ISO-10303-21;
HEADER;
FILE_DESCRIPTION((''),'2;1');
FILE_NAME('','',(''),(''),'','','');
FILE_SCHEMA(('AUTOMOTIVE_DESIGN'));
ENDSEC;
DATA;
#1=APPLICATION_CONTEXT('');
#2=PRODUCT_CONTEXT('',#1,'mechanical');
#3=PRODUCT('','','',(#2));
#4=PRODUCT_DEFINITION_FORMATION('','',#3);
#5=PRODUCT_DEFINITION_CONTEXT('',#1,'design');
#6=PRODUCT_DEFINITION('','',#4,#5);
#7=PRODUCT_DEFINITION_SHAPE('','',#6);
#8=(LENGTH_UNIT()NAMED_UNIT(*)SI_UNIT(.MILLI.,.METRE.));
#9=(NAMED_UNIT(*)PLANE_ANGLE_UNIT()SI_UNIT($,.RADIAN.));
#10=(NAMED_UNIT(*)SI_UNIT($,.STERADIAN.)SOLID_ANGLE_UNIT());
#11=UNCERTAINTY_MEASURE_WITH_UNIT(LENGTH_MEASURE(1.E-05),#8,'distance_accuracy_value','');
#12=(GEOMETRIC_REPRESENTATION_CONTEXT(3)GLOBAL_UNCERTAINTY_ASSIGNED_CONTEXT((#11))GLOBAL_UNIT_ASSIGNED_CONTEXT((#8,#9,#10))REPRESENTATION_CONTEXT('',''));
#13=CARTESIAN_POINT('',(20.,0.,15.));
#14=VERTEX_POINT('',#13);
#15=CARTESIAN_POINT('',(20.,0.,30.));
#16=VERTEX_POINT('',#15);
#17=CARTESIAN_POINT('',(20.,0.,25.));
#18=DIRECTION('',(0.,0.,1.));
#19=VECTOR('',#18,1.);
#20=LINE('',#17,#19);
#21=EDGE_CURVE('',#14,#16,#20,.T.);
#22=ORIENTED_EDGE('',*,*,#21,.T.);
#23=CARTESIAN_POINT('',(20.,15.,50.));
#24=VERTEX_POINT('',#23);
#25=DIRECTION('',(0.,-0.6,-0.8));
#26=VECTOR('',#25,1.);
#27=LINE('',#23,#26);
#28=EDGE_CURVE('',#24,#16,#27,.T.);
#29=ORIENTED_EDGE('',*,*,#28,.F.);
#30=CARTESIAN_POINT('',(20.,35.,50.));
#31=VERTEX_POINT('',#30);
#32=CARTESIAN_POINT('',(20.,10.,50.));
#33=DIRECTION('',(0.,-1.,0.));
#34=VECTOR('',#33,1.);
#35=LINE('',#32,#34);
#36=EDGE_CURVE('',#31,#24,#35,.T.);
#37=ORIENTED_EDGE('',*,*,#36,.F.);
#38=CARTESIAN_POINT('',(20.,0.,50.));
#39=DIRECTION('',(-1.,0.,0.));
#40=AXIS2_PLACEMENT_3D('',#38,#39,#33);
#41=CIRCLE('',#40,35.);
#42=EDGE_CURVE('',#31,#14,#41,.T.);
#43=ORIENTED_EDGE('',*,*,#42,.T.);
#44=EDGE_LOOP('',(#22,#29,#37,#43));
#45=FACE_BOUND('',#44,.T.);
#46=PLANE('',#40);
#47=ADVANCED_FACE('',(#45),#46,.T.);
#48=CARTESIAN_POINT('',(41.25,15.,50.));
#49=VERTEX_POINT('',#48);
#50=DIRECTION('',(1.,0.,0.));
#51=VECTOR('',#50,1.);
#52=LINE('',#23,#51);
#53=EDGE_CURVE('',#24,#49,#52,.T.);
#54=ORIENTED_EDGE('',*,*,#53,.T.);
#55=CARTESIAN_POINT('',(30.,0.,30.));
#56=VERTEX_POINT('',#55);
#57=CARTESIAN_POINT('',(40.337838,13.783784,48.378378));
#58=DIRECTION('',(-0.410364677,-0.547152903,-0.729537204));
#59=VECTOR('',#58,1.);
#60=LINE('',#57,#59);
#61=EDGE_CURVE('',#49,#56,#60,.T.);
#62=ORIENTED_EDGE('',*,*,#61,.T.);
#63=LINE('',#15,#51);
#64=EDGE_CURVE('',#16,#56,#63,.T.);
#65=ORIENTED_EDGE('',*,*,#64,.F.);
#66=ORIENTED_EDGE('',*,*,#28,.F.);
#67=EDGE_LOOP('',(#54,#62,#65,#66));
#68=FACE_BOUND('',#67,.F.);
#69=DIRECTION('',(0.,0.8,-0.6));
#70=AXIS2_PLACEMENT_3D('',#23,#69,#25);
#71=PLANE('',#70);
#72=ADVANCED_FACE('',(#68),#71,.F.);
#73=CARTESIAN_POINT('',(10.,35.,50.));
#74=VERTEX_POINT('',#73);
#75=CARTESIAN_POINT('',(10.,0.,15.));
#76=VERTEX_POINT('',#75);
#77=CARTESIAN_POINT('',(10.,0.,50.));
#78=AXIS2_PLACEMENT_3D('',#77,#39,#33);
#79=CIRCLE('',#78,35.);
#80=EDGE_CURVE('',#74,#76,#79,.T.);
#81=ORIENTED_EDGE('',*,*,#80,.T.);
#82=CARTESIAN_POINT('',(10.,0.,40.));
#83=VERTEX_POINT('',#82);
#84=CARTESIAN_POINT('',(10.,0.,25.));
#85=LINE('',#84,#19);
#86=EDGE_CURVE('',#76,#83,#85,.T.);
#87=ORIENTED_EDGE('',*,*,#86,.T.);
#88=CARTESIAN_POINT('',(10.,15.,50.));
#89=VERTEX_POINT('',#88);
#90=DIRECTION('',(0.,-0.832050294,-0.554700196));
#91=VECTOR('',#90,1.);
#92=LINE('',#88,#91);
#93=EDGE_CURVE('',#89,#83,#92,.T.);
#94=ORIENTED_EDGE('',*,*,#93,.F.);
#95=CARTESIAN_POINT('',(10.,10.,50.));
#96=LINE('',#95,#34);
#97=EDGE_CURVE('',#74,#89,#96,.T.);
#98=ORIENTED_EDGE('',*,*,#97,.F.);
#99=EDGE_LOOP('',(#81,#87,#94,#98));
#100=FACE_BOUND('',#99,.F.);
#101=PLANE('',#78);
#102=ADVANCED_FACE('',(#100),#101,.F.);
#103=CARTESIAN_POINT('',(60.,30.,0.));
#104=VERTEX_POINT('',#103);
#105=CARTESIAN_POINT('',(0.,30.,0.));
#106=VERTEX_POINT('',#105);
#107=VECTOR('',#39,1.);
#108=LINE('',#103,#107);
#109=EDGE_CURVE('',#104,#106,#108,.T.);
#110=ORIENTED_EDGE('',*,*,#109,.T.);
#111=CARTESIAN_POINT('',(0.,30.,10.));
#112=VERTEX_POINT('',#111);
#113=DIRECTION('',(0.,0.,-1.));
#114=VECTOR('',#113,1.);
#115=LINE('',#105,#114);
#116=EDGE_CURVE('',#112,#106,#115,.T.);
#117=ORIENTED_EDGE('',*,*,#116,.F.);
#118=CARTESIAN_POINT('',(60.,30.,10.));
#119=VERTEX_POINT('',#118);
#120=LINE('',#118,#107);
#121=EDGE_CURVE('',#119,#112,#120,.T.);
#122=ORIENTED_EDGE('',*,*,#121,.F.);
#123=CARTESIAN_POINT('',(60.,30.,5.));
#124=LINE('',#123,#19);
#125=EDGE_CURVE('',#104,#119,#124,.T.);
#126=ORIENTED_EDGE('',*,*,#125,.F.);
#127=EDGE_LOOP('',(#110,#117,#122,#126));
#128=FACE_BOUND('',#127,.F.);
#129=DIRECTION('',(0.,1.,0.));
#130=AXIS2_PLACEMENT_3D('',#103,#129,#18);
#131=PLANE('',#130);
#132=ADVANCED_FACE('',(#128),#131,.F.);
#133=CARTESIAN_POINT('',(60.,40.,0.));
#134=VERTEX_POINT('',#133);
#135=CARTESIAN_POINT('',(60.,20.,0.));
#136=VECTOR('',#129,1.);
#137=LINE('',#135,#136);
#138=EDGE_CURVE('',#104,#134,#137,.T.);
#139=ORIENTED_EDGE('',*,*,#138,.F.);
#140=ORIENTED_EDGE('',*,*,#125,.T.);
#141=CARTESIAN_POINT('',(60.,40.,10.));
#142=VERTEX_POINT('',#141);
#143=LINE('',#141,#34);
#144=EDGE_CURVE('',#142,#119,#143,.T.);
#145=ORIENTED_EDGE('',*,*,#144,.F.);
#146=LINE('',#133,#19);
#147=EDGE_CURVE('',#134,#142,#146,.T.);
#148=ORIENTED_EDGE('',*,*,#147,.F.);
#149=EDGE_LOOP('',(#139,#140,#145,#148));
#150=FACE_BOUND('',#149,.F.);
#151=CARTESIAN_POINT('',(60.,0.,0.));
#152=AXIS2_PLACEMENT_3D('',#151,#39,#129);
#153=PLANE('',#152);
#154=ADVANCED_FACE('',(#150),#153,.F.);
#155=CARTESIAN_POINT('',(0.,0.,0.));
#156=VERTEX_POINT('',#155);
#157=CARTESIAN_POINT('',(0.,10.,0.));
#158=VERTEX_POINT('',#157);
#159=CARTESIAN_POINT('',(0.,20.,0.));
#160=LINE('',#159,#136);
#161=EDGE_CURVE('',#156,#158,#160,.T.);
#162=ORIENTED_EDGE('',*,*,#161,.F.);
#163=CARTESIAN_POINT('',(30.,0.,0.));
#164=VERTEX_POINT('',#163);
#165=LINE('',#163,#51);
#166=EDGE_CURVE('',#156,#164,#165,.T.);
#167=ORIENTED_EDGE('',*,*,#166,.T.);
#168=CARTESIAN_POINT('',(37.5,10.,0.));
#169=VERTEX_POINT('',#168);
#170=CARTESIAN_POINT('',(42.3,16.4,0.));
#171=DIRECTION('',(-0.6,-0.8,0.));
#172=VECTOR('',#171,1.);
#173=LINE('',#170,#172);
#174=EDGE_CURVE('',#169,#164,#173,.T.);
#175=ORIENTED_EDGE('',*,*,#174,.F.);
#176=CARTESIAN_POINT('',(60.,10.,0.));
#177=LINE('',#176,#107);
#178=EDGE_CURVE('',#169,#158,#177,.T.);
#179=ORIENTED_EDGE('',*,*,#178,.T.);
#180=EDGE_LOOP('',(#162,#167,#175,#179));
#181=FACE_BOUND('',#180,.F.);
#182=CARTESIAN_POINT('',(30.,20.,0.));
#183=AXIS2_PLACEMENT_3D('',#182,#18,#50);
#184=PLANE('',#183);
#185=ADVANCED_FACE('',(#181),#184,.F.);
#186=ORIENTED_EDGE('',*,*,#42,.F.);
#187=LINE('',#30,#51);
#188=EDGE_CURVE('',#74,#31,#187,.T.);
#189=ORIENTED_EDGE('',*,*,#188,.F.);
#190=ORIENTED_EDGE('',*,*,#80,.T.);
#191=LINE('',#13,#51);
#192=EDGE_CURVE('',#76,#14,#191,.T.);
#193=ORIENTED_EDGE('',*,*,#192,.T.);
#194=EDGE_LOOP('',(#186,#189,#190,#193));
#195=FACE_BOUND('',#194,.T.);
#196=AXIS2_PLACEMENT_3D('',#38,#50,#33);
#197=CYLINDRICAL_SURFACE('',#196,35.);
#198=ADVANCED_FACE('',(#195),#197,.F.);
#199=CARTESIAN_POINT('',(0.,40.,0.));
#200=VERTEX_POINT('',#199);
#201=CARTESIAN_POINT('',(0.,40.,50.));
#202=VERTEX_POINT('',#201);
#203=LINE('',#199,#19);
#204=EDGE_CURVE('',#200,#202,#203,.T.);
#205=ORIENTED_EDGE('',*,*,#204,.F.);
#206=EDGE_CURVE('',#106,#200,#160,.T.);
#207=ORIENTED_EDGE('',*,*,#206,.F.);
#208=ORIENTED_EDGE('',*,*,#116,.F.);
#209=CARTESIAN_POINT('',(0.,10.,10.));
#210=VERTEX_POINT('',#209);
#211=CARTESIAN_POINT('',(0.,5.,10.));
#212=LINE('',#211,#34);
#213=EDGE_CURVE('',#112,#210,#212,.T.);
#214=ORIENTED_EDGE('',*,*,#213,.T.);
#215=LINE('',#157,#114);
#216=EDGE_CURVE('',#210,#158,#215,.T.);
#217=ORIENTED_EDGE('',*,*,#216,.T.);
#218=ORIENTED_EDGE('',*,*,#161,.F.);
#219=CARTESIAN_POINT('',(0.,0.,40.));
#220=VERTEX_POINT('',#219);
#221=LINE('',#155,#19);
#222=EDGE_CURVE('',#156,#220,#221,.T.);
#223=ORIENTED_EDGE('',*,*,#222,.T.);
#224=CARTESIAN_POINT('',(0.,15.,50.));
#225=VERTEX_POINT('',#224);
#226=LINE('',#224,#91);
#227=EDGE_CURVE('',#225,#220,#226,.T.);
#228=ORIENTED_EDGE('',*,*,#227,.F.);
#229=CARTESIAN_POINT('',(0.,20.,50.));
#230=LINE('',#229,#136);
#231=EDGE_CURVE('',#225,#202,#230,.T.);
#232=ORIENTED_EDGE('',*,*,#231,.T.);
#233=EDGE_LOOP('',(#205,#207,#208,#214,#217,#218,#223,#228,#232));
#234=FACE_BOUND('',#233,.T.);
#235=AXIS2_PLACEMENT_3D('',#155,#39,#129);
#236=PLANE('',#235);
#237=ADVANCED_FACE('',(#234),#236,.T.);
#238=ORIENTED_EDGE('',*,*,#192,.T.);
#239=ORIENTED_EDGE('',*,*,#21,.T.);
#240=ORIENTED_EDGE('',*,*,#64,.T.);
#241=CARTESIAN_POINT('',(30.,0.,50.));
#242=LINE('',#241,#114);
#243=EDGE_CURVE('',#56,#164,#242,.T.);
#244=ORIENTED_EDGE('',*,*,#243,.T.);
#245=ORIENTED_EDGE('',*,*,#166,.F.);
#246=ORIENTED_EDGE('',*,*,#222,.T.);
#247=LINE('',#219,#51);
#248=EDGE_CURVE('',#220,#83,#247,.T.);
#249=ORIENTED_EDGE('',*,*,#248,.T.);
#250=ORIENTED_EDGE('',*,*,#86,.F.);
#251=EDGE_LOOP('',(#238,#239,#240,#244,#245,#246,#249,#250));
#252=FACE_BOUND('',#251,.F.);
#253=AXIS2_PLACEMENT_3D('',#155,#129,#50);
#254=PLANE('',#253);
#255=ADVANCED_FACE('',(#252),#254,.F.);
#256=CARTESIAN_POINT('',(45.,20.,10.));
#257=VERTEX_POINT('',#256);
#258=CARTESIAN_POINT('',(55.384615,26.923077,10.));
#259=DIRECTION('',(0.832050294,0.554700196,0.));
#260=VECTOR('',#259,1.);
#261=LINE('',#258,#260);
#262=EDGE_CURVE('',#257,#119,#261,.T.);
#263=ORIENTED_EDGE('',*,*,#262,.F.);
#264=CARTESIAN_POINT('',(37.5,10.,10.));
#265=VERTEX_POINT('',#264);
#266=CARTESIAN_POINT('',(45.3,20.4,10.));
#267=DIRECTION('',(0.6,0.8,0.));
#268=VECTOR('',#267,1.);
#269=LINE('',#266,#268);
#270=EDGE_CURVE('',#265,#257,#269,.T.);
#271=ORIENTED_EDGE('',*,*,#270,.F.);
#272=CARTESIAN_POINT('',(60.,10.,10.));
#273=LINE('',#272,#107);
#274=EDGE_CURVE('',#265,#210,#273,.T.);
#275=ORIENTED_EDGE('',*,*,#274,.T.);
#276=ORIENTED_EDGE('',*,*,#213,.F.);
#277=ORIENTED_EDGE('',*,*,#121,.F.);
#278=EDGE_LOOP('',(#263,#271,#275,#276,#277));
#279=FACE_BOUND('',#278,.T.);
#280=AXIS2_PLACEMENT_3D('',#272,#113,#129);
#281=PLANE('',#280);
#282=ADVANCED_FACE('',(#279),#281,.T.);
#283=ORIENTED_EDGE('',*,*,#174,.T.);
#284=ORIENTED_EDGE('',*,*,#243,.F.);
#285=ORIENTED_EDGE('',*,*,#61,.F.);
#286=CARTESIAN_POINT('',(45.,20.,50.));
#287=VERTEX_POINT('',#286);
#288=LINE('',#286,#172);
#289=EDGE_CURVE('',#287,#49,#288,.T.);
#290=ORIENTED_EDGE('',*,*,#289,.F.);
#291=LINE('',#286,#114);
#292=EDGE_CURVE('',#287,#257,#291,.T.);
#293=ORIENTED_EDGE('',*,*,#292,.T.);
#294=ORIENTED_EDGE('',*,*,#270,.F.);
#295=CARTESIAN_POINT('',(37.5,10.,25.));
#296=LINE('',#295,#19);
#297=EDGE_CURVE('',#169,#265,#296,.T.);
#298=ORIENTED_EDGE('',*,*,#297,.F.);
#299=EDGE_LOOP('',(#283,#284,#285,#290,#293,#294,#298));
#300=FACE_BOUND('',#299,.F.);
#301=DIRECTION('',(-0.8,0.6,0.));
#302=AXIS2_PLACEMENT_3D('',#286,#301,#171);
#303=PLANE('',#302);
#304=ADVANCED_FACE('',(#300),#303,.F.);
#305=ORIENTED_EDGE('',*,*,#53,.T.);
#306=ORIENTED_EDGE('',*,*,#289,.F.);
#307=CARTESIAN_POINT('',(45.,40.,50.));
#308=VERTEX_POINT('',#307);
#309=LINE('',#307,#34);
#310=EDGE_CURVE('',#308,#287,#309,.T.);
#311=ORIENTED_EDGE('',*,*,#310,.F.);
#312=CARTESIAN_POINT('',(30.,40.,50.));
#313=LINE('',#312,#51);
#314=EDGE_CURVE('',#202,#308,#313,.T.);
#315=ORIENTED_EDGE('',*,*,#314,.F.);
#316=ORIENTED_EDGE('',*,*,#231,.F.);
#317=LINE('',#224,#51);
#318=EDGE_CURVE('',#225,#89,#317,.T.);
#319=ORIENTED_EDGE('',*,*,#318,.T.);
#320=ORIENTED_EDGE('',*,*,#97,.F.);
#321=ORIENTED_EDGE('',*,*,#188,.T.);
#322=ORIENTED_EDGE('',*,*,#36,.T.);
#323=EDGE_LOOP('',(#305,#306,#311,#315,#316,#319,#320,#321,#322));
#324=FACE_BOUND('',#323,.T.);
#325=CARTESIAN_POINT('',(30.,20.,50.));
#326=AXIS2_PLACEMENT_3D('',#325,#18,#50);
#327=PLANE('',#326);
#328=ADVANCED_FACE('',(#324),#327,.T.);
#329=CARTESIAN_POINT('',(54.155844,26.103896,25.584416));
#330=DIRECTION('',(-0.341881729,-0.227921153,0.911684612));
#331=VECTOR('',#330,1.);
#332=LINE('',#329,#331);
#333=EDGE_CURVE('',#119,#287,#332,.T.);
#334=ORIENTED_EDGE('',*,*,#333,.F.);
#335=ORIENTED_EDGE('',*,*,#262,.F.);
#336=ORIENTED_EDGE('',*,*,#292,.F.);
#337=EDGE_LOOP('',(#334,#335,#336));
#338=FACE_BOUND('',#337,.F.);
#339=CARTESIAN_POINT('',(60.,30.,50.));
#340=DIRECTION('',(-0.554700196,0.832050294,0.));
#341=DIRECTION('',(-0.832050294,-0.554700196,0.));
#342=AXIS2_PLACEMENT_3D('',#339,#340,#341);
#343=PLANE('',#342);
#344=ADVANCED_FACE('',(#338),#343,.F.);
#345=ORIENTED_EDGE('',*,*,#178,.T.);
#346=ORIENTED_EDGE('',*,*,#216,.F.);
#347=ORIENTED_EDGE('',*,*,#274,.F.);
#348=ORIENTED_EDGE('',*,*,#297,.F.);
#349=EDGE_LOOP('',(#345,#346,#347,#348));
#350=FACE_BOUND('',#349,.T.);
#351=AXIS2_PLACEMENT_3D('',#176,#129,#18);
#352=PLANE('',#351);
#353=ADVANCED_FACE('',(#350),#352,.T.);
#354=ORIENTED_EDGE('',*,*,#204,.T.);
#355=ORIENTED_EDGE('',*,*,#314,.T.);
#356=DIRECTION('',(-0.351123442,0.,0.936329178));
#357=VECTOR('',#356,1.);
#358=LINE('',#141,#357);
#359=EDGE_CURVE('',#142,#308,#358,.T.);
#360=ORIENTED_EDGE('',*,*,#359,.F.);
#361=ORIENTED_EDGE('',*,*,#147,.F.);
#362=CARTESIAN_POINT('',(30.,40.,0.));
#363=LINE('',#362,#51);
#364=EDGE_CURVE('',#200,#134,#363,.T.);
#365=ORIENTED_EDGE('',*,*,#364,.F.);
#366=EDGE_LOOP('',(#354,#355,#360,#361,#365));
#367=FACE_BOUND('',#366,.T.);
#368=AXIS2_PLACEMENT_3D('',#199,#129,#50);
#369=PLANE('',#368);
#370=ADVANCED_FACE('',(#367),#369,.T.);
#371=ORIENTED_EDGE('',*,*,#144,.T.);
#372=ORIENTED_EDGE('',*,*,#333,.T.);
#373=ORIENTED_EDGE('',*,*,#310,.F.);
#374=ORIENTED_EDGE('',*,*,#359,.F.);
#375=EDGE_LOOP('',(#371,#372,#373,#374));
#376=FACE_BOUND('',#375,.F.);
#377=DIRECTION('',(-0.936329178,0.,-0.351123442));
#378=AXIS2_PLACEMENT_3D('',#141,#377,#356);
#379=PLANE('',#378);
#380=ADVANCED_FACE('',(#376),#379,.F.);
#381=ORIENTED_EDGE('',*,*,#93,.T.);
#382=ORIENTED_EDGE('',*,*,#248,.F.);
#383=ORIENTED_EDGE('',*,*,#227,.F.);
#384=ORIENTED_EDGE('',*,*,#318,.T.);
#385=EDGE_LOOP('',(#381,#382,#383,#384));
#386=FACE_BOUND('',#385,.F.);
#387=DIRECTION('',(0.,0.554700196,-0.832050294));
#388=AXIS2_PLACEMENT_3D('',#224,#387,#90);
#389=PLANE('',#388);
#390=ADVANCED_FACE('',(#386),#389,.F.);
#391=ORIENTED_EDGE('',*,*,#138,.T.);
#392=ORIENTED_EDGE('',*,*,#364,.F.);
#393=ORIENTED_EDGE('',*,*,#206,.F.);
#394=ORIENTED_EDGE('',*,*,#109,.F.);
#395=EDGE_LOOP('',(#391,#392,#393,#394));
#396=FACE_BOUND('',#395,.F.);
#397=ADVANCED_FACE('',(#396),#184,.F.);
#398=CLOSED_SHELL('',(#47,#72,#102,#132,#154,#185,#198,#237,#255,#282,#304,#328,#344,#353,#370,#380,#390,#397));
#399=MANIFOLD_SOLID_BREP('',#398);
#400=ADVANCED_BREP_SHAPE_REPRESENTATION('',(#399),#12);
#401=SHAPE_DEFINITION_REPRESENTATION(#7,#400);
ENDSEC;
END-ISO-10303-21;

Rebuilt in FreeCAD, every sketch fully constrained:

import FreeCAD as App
import Part
import Sketcher
from FreeCAD import Vector


def add_polygon(sketch, points):
    """Adds a closed chain of lines whose ends are joined by coincident constraints."""
    first, n = sketch.GeometryCount, len(points)
    for a, b in zip(points, points[1:] + points[:1]):
        sketch.addGeometry(Part.LineSegment(App.Vector(*a, 0), App.Vector(*b, 0)), False)
    for i in range(n):
        sketch.addConstraint(Sketcher.Constraint("Coincident", first + i, 2, first + (i + 1) % n, 1))

doc = App.newDocument("Part")
body = doc.addObject("PartDesign::Body", "Body")

# Sketch on XY plane
sketch1 = body.newObject("Sketcher::SketchObject", "Sketch")
sketch1.AttachmentSupport = (doc.getObject("XY_Plane"), [""])
sketch1.MapMode = "FlatFace"
add_polygon(sketch1, [(0, 40), (0, 0), (60, 0), (60, 40)])  # lines 0-3
sketch1.addConstraint([
    Sketcher.Constraint("Vertical", 0),
    Sketcher.Constraint("Horizontal", 1),
    Sketcher.Constraint("Vertical", 2),
    Sketcher.Constraint("Horizontal", 3),
    Sketcher.Constraint("Coincident", 0, 2, -1, 1),
    Sketcher.Constraint("DistanceX", 1, 1, 1, 2, 60.0),
    Sketcher.Constraint("DistanceY", 0, 2, 0, 1, 40.0),
])
pad1 = body.newObject("PartDesign::Pad", "Pad")
pad1.Profile = sketch1
pad1.Length = 50

# Sketch on YZ plane
sketch2 = body.newObject("Sketcher::SketchObject", "Sketch001")
sketch2.AttachmentSupport = (doc.getObject("YZ_Plane"), [""])
sketch2.MapMode = "FlatFace"
sketch2.AttachmentOffset = App.Placement(Vector(0, 0, 60), App.Rotation())
add_polygon(sketch2, [(10, 10), (10, 0), (30, 0), (30, 10)])  # lines 0-3
sketch2.addConstraint([
    Sketcher.Constraint("Vertical", 0),
    Sketcher.Constraint("Horizontal", 1),
    Sketcher.Constraint("Vertical", 2),
    Sketcher.Constraint("Horizontal", 3),
    Sketcher.Constraint("PointOnObject", 0, 2, -1),
    Sketcher.Constraint("DistanceX", 1, 1, 1, 2, 20.0),
    Sketcher.Constraint("DistanceY", 0, 2, 0, 1, 10.0),
    Sketcher.Constraint("DistanceX", -1, 1, 0, 2, 10.0),
])
pocket1 = body.newObject("PartDesign::Pocket", "Pocket")
pocket1.Profile = sketch2
pocket1.Type = "ThroughAll"

# Sketch on YZ plane
sketch3 = body.newObject("Sketcher::SketchObject", "Sketch002")
sketch3.AttachmentSupport = (doc.getObject("YZ_Plane"), [""])
sketch3.MapMode = "FlatFace"
sketch3.AttachmentOffset = App.Placement(Vector(0, 0, 20), App.Rotation())
sketch3.addGeometry(Part.Circle(Vector(0, 50, 0), Vector(0, 0, 1), 35), False)
sketch3.addConstraint([
    Sketcher.Constraint("PointOnObject", 0, 3, -2),
    Sketcher.Constraint("Diameter", 0, 70.0),
    Sketcher.Constraint("DistanceY", -1, 1, 0, 3, 50.0),
])
pocket2 = body.newObject("PartDesign::Pocket", "Pocket001")
pocket2.Profile = sketch3
pocket2.Length = 10

# Sketch on XY plane
sketch4 = body.newObject("Sketcher::SketchObject", "Sketch003")
sketch4.AttachmentSupport = (doc.getObject("XY_Plane"), [""])
sketch4.MapMode = "FlatFace"
sketch4.AttachmentOffset = App.Placement(Vector(0, 0, 50), App.Rotation())
add_polygon(sketch4, [(60, 0), (60, 30), (45, 20), (30, 0)])  # lines 0-3
sketch4.addConstraint([
    Sketcher.Constraint("Vertical", 0),
    Sketcher.Constraint("Horizontal", 3),
    Sketcher.Constraint("PointOnObject", 2, 2, -1),
    Sketcher.Constraint("Equal", 3, 0),
    Sketcher.Constraint("DistanceX", 3, 1, 3, 2, 30.0),
    Sketcher.Constraint("Distance", 2, 25.0),
    Sketcher.Constraint("DistanceX", -1, 1, 0, 2, 60.0),
    Sketcher.Constraint("DistanceX", -1, 1, 1, 2, 45.0),
])
pocket3 = body.newObject("PartDesign::Pocket", "Pocket002")
pocket3.Profile = sketch4
pocket3.Type = "ThroughAll"

# Sketch on YZ plane
sketch5 = body.newObject("Sketcher::SketchObject", "Sketch004")
sketch5.AttachmentSupport = (doc.getObject("YZ_Plane"), [""])
sketch5.MapMode = "FlatFace"
add_polygon(sketch5, [(0, 40), (0, 50), (15, 50)])  # lines 0-2
sketch5.addConstraint([
    Sketcher.Constraint("Vertical", 0),
    Sketcher.Constraint("Horizontal", 1),
    Sketcher.Constraint("PointOnObject", 0, 2, -2),
    Sketcher.Constraint("DistanceX", 1, 1, 1, 2, 15.0),
    Sketcher.Constraint("DistanceY", 0, 1, 0, 2, 10.0),
    Sketcher.Constraint("DistanceY", -1, 1, 0, 2, 50.0),
])
pocket4 = body.newObject("PartDesign::Pocket", "Pocket003")
pocket4.Profile = sketch5
pocket4.Length = 10
pocket4.Reversed = True

# Sketch on YZ plane
sketch6 = body.newObject("Sketcher::SketchObject", "Sketch005")
sketch6.AttachmentSupport = (doc.getObject("YZ_Plane"), [""])
sketch6.MapMode = "FlatFace"
sketch6.AttachmentOffset = App.Placement(Vector(0, 0, 20), App.Rotation())
add_polygon(sketch6, [(15, 50), (0, 30), (0, 50)])  # lines 0-2
sketch6.addConstraint([
    Sketcher.Constraint("Vertical", 1),
    Sketcher.Constraint("Horizontal", 2),
    Sketcher.Constraint("PointOnObject", 0, 2, -2),
    Sketcher.Constraint("DistanceX", 2, 1, 2, 2, 15.0),
    Sketcher.Constraint("DistanceY", 1, 1, 1, 2, 20.0),
    Sketcher.Constraint("DistanceY", -1, 1, 0, 2, 30.0),
])
pocket5 = body.newObject("PartDesign::Pocket", "Pocket004")
pocket5.Profile = sketch6
pocket5.Type = "ThroughAll"
pocket5.Reversed = True

# Sketch on XZ plane
sketch7 = body.newObject("Sketcher::SketchObject", "Sketch006")
sketch7.AttachmentSupport = (doc.getObject("XZ_Plane"), [""])
sketch7.MapMode = "FlatFace"
sketch7.AttachmentOffset = App.Placement(Vector(0, 0, -40), App.Rotation())
add_polygon(sketch7, [(45, 50), (60, 50), (60, 10)])  # lines 0-2
sketch7.addConstraint([
    Sketcher.Constraint("Horizontal", 0),
    Sketcher.Constraint("Vertical", 1),
    Sketcher.Constraint("DistanceX", 0, 1, 0, 2, 15.0),
    Sketcher.Constraint("DistanceY", 1, 2, 1, 1, 40.0),
    Sketcher.Constraint("DistanceX", -1, 1, 0, 2, 60.0),
    Sketcher.Constraint("DistanceY", -1, 1, 0, 2, 50.0),
])
pocket6 = body.newObject("PartDesign::Pocket", "Pocket005")
pocket6.Profile = sketch7
pocket6.Type = "ThroughAll"
pocket6.Reversed = True

doc.recompute()
